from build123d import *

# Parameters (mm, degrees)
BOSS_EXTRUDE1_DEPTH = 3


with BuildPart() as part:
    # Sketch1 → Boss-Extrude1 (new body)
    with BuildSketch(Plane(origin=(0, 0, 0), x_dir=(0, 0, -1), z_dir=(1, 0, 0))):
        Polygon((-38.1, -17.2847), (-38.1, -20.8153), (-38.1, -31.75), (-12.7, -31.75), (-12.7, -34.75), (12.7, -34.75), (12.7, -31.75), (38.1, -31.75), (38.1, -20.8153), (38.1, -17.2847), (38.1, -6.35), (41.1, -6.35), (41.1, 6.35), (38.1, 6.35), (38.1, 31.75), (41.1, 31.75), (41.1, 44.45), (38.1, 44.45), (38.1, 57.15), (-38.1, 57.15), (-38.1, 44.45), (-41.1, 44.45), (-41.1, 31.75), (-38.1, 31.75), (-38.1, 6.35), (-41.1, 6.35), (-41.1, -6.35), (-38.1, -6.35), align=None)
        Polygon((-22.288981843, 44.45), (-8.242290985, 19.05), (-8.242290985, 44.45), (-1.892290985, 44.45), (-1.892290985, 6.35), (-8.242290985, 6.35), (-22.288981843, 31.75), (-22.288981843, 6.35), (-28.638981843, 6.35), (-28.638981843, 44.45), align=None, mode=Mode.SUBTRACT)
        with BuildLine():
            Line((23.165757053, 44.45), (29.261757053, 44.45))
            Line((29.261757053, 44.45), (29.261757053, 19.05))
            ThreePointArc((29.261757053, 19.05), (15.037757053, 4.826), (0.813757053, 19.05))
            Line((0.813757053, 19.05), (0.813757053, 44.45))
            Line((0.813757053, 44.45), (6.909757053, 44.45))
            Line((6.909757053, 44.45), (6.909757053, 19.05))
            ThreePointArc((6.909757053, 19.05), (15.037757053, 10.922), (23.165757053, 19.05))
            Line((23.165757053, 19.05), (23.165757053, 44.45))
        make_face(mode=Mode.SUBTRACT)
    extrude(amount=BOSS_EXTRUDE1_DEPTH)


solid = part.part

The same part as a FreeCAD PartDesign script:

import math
import FreeCAD as App
import Part
import Sketcher
from FreeCAD import Vector
Q = App.Units.Quantity

doc = App.newDocument("Part")
params = doc.addObject("Spreadsheet::Sheet", "Params")
for row, (alias, value) in enumerate([
    ("sketch1_width", "1 in"),
    ("sketch1_radius", "0.56 in"),
    ("sketch1_radius2", "0.32 in"),
    ("sketch1_width2", "0.5 in"),
    ("sketch1_height", "0.25 in"),
    ("pad1_length", "3 mm"),
], start=1):
    params.set(f"A{row}", alias)
    params.set(f"B{row}", "=" + value)
    params.setAlias(f"B{row}", alias)

body = doc.addObject("PartDesign::Body", "Body")

sketch1 = doc.addObject("Sketcher::SketchObject", "Sketch")
body.addObject(sketch1)
sketch1.AttachmentSupport = (doc.YZ_Plane, [""])
sketch1.MapMode = "FlatFace"
sketch1.addGeometry([
    Part.LineSegment(Vector(-31.75, 38.1, 0), Vector(-31.75, 12.7, 0)),
    Part.LineSegment(Vector(-31.75, 12.7, 0), Vector(-34.75, 12.7, 0)),
    Part.LineSegment(Vector(-34.75, 12.7, 0), Vector(-34.75, -12.7, 0)),
    Part.LineSegment(Vector(-34.75, -12.7, 0), Vector(-31.75, -12.7, 0)),
    Part.LineSegment(Vector(-31.75, -12.7, 0), Vector(-31.75, -38.1, 0)),
    Part.LineSegment(Vector(-31.75, -38.1, 0), Vector(-6.35, -38.1, 0)),
    Part.LineSegment(Vector(-6.35, -38.1, 0), Vector(-6.35, -41.1, 0)),
    Part.LineSegment(Vector(-6.35, -41.1, 0), Vector(6.35, -41.1, 0)),
    Part.LineSegment(Vector(6.35, -41.1, 0), Vector(6.35, -38.1, 0)),
    Part.LineSegment(Vector(6.35, -38.1, 0), Vector(31.75, -38.1, 0)),
    Part.LineSegment(Vector(31.75, -38.1, 0), Vector(31.75, -41.1, 0)),
    Part.LineSegment(Vector(31.75, -41.1, 0), Vector(44.45, -41.1, 0)),
    Part.LineSegment(Vector(44.45, -41.1, 0), Vector(44.45, -38.1, 0)),
    Part.LineSegment(Vector(44.45, -38.1, 0), Vector(57.15, -38.1, 0)),
    Part.LineSegment(Vector(57.15, -38.1, 0), Vector(57.15, 38.1, 0)),
    Part.LineSegment(Vector(57.15, 38.1, 0), Vector(44.45, 38.1, 0)),
    Part.LineSegment(Vector(44.45, 38.1, 0), Vector(44.45, 41.1, 0)),
    Part.LineSegment(Vector(44.45, 41.1, 0), Vector(31.75, 41.1, 0)),
    Part.LineSegment(Vector(31.75, 41.1, 0), Vector(31.75, 38.1, 0)),
    Part.LineSegment(Vector(31.75, 38.1, 0), Vector(6.35, 38.1, 0)),
    Part.LineSegment(Vector(6.35, 38.1, 0), Vector(6.35, 41.1, 0)),
    Part.LineSegment(Vector(6.35, 41.1, 0), Vector(-6.35, 41.1, 0)),
    Part.LineSegment(Vector(-6.35, 41.1, 0), Vector(-6.35, 38.1, 0)),
    Part.LineSegment(Vector(-6.35, 38.1, 0), Vector(-31.75, 38.1, 0)),
    Part.LineSegment(Vector(44.45, 28.638982, 0), Vector(44.45, 22.288982, 0)),
    Part.LineSegment(Vector(44.45, 22.288982, 0), Vector(19.05, 8.242291, 0)),
    Part.LineSegment(Vector(19.05, 8.242291, 0), Vector(44.45, 8.242291, 0)),
    Part.LineSegment(Vector(44.45, 8.242291, 0), Vector(44.45, 1.892291, 0)),
    Part.LineSegment(Vector(44.45, 1.892291, 0), Vector(6.35, 1.892291, 0)),
    Part.LineSegment(Vector(6.35, 1.892291, 0), Vector(6.35, 8.242291, 0)),
    Part.LineSegment(Vector(6.35, 8.242291, 0), Vector(31.75, 22.288982, 0)),
    Part.LineSegment(Vector(31.75, 22.288982, 0), Vector(6.35, 22.288982, 0)),
    Part.LineSegment(Vector(6.35, 22.288982, 0), Vector(6.35, 28.638982, 0)),
    Part.LineSegment(Vector(6.35, 28.638982, 0), Vector(44.45, 28.638982, 0)),
    Part.LineSegment(Vector(19.05, -23.165757, 0), Vector(44.45, -23.165757, 0)),
    Part.LineSegment(Vector(44.45, -23.165757, 0), Vector(44.45, -29.261757, 0)),
    Part.LineSegment(Vector(44.45, -29.261757, 0), Vector(19.05, -29.261757, 0)),
    Part.ArcOfCircle(Part.Circle(Vector(19.05, -15.037757, 0), Vector(0, 0, 1), 14.224), math.radians(90), math.radians(270)),
    Part.LineSegment(Vector(19.05, -0.813757, 0), Vector(44.45, -0.813757, 0)),
    Part.LineSegment(Vector(44.45, -0.813757, 0), Vector(44.45, -6.909757, 0)),
    Part.LineSegment(Vector(44.45, -6.909757, 0), Vector(19.05, -6.909757, 0)),
    Part.ArcOfCircle(Part.Circle(Vector(19.05, -15.037757, 0), Vector(0, 0, 1), 8.128), math.radians(90), math.radians(270)),
], False)
sketch1.addConstraint([
    Sketcher.Constraint("Coincident", 0, 2, 1, 1),
    Sketcher.Constraint("Coincident", 1, 2, 2, 1),
    Sketcher.Constraint("Coincident", 2, 2, 3, 1),
    Sketcher.Constraint("Coincident", 3, 2, 4, 1),
    Sketcher.Constraint("Coincident", 4, 2, 5, 1),
    Sketcher.Constraint("Coincident", 5, 2, 6, 1),
    Sketcher.Constraint("Coincident", 6, 2, 7, 1),
    Sketcher.Constraint("Coincident", 7, 2, 8, 1),
    Sketcher.Constraint("Coincident", 8, 2, 9, 1),
    Sketcher.Constraint("Coincident", 9, 2, 10, 1),
    Sketcher.Constraint("Coincident", 10, 2, 11, 1),
    Sketcher.Constraint("Coincident", 11, 2, 12, 1),
    Sketcher.Constraint("Coincident", 12, 2, 13, 1),
    Sketcher.Constraint("Coincident", 13, 2, 14, 1),
    Sketcher.Constraint("Coincident", 14, 2, 15, 1),
    Sketcher.Constraint("Coincident", 15, 2, 16, 1),
    Sketcher.Constraint("Coincident", 16, 2, 17, 1),
    Sketcher.Constraint("Coincident", 17, 2, 18, 1),
    Sketcher.Constraint("Coincident", 18, 2, 19, 1),
    Sketcher.Constraint("Coincident", 19, 2, 20, 1),
    Sketcher.Constraint("Coincident", 20, 2, 21, 1),
    Sketcher.Constraint("Coincident", 21, 2, 22, 1),
    Sketcher.Constraint("Coincident", 22, 2, 23, 1),
    Sketcher.Constraint("Coincident", 23, 2, 0, 1),
    Sketcher.Constraint("Coincident", 24, 2, 25, 1),
    Sketcher.Constraint("Coincident", 25, 2, 26, 1),
    Sketcher.Constraint("Coincident", 26, 2, 27, 1),
    Sketcher.Constraint("Coincident", 27, 2, 28, 1),
    Sketcher.Constraint("Coincident", 28, 2, 29, 1),
    Sketcher.Constraint("Coincident", 29, 2, 30, 1),
    Sketcher.Constraint("Coincident", 30, 2, 31, 1),
    Sketcher.Constraint("Coincident", 31, 2, 32, 1),
    Sketcher.Constraint("Coincident", 32, 2, 33, 1),
    Sketcher.Constraint("Coincident", 33, 2, 24, 1),
    Sketcher.Constraint("Coincident", 34, 2, 35, 1),
    Sketcher.Constraint("Coincident", 35, 2, 36, 1),
    Sketcher.Constraint("Tangent", 36, 2, 37, 2),
    Sketcher.Constraint("Tangent", 37, 1, 38, 1),
    Sketcher.Constraint("Coincident", 38, 2, 39, 1),
    Sketcher.Constraint("Coincident", 39, 2, 40, 1),
    Sketcher.Constraint("Tangent", 40, 2, 41, 1),
    Sketcher.Constraint("Tangent", 41, 2, 34, 1),
    Sketcher.Constraint("Vertical", 0),
    Sketcher.Constraint("Horizontal", 1),
    Sketcher.Constraint("Vertical", 2),
    Sketcher.Constraint("Horizontal", 3),
    Sketcher.Constraint("Vertical", 4),
    Sketcher.Constraint("Horizontal", 5),
    Sketcher.Constraint("Vertical", 6),
    Sketcher.Constraint("Horizontal", 7),
    Sketcher.Constraint("Vertical", 8),
    Sketcher.Constraint("Horizontal", 9),
    Sketcher.Constraint("Vertical", 10),
    Sketcher.Constraint("Horizontal", 11),
    Sketcher.Constraint("Vertical", 12),
    Sketcher.Constraint("Horizontal", 13),
    Sketcher.Constraint("Vertical", 14),
    Sketcher.Constraint("Horizontal", 15),
    Sketcher.Constraint("Vertical", 16),
    Sketcher.Constraint("Horizontal", 17),
    Sketcher.Constraint("Vertical", 18),
    Sketcher.Constraint("Horizontal", 19),
    Sketcher.Constraint("Vertical", 20),
    Sketcher.Constraint("Horizontal", 21),
    Sketcher.Constraint("Vertical", 22),
    Sketcher.Constraint("Horizontal", 23),
    Sketcher.Constraint("Vertical", 24),
    Sketcher.Constraint("Horizontal", 26),
    Sketcher.Constraint("Vertical", 27),
    Sketcher.Constraint("Horizontal", 28),
    Sketcher.Constraint("Vertical", 29),
    Sketcher.Constraint("Horizontal", 31),
    Sketcher.Constraint("Vertical", 32),
    Sketcher.Constraint("Horizontal", 33),
    Sketcher.Constraint("Horizontal", 34),
    Sketcher.Constraint("Vertical", 35),
    Sketcher.Constraint("Horizontal", 36),
    Sketcher.Constraint("Horizontal", 38),
    Sketcher.Constraint("Vertical", 39),
    Sketcher.Constraint("Horizontal", 40),
    Sketcher.Constraint("Coincident", 41, 3, 37, 3),
    Sketcher.Constraint("Symmetric", 4, 2, 18, 2, -1, 1),
    Sketcher.Constraint("Symmetric", 6, 2, 20, 2, -1, 1),
    Sketcher.Constraint("Symmetric", 8, 2, 22, 2, -1, 1),
    Sketcher.Constraint("Symmetric", 5, 2, 8, 2, -2),
    Sketcher.Constraint("Symmetric", 0, 2, 3, 2, -1),
    Sketcher.Constraint("Symmetric", 12, 2, 15, 2, -1),
    Sketcher.Constraint("Symmetric", 10, 2, 17, 2, -1),
    Sketcher.Constraint("Parallel", 25, 30),
    Sketcher.Constraint("Horizontal", 7, 2, 10, 2),
    Sketcher.Constraint("Horizontal", 9, 2, 12, 2),
    Sketcher.Constraint("Horizontal", 26, 2, 29, 2),
    Sketcher.Constraint("Horizontal", 24, 2, 30, 2),
    Sketcher.Constraint("Vertical", 16, 2, 24, 2),
    Sketcher.Constraint("Vertical", 41, 3, 25, 2),
    Sketcher.Constraint("Vertical", 24, 2, 26, 2),
    Sketcher.Constraint("Vertical", 20, 2, 28, 2),
    Sketcher.Constraint("Vertical", 18, 2, 30, 2),
    Sketcher.Constraint("Vertical", 29, 2, 31, 2),
    Sketcher.Constraint("Vertical", 33, 2, 34, 2),
    Sketcher.Constraint("Vertical", 35, 2, 38, 2),
    Sketcher.Constraint("Equal", 7, 11),
    Sketcher.Constraint("Equal", 11, 13),
    Sketcher.Constraint("Equal", 40, 0),
    Sketcher.Constraint("Equal", 0, 2),
    Sketcher.Constraint("Equal", 3, 6),
    Sketcher.Constraint("Equal", 24, 27),
    Sketcher.Constraint("DistanceX", 5, 1, 5, 2, Q("1 in")),
    Sketcher.Constraint("Radius", 37, Q("0.56 in")),
    Sketcher.Constraint("Radius", 41, Q("0.32 in")),
    Sketcher.Constraint("DistanceX", 7, 1, 7, 2, Q("0.5 in")),
    Sketcher.Constraint("DistanceY", 24, 2, 24, 1, Q("0.25 in")),
    Sketcher.Constraint("DistanceX", 1, 2, 1, 1, 3.0),
    Sketcher.Constraint("DistanceY", -1, 1, 24, 2, 22.288982),
    Sketcher.Constraint("DistanceY", -1, 1, 25, 2, 8.242291),
    Sketcher.Constraint("DistanceY", 37, 3, 25, 2, 23.280048),
])
sketch1.setExpression("Constraints[107]", "Params.sketch1_width")
sketch1.setExpression("Constraints[108]", "Params.sketch1_radius")
sketch1.setExpression("Constraints[109]", "Params.sketch1_radius2")
sketch1.setExpression("Constraints[110]", "Params.sketch1_width2")
sketch1.setExpression("Constraints[111]", "Params.sketch1_height")
pad1 = doc.addObject("PartDesign::Pad", "Pad")
body.addObject(pad1)
pad1.Profile = sketch1
pad1.setExpression("Length", "Params.pad1_length")

doc.recompute()
